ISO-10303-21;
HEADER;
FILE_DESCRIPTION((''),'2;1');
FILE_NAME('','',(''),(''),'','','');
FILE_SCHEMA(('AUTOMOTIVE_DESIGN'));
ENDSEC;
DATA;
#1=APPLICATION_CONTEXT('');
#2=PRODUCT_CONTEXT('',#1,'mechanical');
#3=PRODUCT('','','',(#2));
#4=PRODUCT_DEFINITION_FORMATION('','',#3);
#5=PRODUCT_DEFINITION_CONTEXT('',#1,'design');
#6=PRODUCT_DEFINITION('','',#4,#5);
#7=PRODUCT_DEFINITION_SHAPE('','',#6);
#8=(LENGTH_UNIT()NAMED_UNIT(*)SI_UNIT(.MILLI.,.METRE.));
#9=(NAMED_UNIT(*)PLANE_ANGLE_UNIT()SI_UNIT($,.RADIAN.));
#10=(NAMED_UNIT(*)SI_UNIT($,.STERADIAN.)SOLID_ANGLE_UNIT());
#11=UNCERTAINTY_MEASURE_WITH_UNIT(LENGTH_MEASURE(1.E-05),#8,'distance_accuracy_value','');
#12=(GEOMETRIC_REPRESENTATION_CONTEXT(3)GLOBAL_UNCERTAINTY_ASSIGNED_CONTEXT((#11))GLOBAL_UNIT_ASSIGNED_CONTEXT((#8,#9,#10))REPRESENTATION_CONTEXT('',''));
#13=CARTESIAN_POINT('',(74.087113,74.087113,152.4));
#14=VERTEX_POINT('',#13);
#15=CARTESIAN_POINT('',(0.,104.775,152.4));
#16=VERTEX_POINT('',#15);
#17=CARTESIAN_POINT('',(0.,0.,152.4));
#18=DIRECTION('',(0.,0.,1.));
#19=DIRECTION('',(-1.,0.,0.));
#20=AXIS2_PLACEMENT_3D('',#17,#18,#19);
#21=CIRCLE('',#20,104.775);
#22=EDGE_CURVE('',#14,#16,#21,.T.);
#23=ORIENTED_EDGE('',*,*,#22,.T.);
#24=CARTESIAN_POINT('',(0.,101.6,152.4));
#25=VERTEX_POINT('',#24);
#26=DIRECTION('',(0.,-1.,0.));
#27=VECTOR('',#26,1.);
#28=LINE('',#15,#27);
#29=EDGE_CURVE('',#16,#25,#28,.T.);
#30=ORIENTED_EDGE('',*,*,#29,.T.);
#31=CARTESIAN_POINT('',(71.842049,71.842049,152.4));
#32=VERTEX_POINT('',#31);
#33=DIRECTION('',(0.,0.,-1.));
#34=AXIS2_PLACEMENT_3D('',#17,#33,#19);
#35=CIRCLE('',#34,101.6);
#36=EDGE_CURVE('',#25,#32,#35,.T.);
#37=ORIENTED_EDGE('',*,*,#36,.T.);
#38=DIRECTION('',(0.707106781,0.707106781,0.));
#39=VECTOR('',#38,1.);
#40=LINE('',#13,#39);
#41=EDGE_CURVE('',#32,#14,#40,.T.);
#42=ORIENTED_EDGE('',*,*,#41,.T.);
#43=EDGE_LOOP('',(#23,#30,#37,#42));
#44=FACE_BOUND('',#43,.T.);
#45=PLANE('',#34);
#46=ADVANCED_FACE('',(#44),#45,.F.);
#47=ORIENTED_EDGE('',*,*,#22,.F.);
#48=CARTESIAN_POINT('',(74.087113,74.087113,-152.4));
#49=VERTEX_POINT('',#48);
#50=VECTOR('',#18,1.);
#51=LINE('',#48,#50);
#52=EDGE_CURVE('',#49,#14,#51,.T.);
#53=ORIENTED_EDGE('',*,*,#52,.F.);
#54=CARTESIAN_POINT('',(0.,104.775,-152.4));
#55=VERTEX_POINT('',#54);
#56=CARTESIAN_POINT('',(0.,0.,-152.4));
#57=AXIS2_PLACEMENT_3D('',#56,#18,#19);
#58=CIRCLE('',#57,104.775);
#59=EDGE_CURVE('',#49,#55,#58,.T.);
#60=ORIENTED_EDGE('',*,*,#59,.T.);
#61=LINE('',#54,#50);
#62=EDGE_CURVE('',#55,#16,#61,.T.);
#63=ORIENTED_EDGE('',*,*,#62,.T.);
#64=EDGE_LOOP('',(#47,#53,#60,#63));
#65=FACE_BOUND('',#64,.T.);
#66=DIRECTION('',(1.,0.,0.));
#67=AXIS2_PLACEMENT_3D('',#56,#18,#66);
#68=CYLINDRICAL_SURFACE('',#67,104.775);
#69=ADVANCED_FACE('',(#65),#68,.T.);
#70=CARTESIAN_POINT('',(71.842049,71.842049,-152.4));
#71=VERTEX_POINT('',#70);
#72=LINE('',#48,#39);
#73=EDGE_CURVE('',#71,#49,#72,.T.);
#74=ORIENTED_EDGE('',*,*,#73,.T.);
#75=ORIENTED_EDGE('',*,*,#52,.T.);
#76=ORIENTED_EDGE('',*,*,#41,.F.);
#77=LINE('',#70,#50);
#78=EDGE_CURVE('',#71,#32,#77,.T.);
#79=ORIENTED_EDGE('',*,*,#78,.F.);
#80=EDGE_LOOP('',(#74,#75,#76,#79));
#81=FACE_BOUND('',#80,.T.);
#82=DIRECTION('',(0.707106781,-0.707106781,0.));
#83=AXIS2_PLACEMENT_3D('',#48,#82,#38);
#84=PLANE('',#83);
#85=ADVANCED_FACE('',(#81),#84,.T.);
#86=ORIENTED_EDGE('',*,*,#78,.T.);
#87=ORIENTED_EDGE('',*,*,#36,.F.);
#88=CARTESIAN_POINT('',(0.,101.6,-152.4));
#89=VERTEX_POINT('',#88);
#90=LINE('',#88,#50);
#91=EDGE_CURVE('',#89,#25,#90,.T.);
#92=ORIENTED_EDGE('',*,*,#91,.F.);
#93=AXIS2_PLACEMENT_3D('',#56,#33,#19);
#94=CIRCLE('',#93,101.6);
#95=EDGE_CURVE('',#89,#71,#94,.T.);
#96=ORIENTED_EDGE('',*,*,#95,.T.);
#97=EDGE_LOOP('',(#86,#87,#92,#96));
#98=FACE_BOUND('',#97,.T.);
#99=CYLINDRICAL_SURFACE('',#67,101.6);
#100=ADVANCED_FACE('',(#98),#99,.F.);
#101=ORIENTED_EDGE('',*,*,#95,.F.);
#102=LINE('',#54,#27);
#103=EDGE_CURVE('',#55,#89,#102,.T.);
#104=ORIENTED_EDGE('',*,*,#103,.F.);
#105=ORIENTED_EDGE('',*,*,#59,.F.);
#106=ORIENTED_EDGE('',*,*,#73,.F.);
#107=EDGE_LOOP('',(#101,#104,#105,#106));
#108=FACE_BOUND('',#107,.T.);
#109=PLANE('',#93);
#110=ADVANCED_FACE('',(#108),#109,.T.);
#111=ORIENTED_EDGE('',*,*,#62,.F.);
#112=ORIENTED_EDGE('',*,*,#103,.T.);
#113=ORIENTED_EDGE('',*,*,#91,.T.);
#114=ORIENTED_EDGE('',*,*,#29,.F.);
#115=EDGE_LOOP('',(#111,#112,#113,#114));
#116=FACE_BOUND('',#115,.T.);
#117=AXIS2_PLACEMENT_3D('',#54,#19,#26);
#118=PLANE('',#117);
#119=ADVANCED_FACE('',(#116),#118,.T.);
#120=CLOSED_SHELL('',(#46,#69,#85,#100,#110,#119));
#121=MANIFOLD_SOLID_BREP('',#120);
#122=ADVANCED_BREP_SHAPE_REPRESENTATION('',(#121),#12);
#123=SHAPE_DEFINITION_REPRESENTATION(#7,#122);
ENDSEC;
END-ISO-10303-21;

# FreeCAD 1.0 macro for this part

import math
import FreeCAD as App
import Part
import Sketcher

V = App.Vector
Q = App.Units.Quantity

doc = App.newDocument("Part")
body = doc.addObject("PartDesign::Body", "Body")

sketch1 = body.newObject("Sketcher::SketchObject", "Sketch")
sketch1.AttachmentSupport = (doc.getObject("XY_Plane"), [""])
sketch1.MapMode = "FlatFace"
sketch1.addGeometry(Part.LineSegment(V(0, 104.775, 0), V(0, 101.6, 0)), False)
sketch1.addGeometry(Part.ArcOfCircle(Part.Circle(V(0, 0, 0), V(0, 0, 1), 101.6), math.radians(45), math.radians(90)), False)
sketch1.addGeometry(Part.LineSegment(V(71.842049, 71.842049, 0), V(74.087113, 74.087113, 0)), False)
sketch1.addGeometry(Part.ArcOfCircle(Part.Circle(V(0, 0, 0), V(0, 0, 1), 104.775), math.radians(45), math.radians(90)), False)
sketch1.addConstraint(Sketcher.Constraint("Coincident", 0, 2, 1, 2))
sketch1.addConstraint(Sketcher.Constraint("Coincident", 1, 1, 2, 1))
sketch1.addConstraint(Sketcher.Constraint("Coincident", 2, 2, 3, 1))
sketch1.addConstraint(Sketcher.Constraint("Coincident", 3, 2, 0, 1))
sketch1.addConstraint(Sketcher.Constraint("Vertical", 0))
sketch1.addConstraint(Sketcher.Constraint("Coincident", 1, 3, -1, 1))
sketch1.addConstraint(Sketcher.Constraint("Coincident", 3, 3, -1, 1))
sketch1.addConstraint(Sketcher.Constraint("PointOnObject", 0, 2, -2))
sketch1.addConstraint(Sketcher.Constraint("Radius", 1, Q("4 in")))
sketch1.addConstraint(Sketcher.Constraint("Angle", 2, Q("45 deg")))
sketch1.addConstraint(Sketcher.Constraint("Radius", 3, Q("4.125 in")))
sketch1.addConstraint(Sketcher.Constraint("DistanceX", -1, 1, 1, 1, Q("71.842049 mm")))
pad1 = body.newObject("PartDesign::Pad", "Pad")
pad1.Profile = sketch1
pad1.Type = "TwoLengths"
pad1.Length = Q("6 in")
pad1.Length2 = Q("6 in")

doc.recompute()
